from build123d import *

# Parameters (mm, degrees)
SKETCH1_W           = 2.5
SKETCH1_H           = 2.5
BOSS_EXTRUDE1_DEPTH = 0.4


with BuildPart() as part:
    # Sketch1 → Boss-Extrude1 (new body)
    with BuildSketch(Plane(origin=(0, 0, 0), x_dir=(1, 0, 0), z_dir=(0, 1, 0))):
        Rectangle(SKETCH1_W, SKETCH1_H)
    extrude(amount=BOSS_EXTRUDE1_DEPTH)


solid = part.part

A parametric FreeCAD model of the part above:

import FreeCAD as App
import Part
import Sketcher
from FreeCAD import Vector
Q = App.Units.Quantity

doc = App.newDocument("Part")
body = doc.addObject("PartDesign::Body", "Body")

sketch1 = body.newObject("Sketcher::SketchObject", "Sketch")
sketch1.AttachmentSupport = (doc.getObject("XZ_Plane"), [""])
sketch1.MapMode = "FlatFace"
sketch1.addGeometry([
    Part.LineSegment(Vector(-1.25, -1.25, 0), Vector(-1.25, 1.25, 0)),
    Part.LineSegment(Vector(-1.25, 1.25, 0), Vector(1.25, 1.25, 0)),
    Part.LineSegment(Vector(1.25, 1.25, 0), Vector(1.25, -1.25, 0)),
    Part.LineSegment(Vector(1.25, -1.25, 0), Vector(-1.25, -1.25, 0)),
], False)
sketch1.addConstraint([
    Sketcher.Constraint("Coincident", 0, 2, 1, 1),
    Sketcher.Constraint("Coincident", 1, 2, 2, 1),
    Sketcher.Constraint("Coincident", 2, 2, 3, 1),
    Sketcher.Constraint("Coincident", 3, 2, 0, 1),
    Sketcher.Constraint("Vertical", 0),
    Sketcher.Constraint("Horizontal", 1),
    Sketcher.Constraint("Vertical", 2),
    Sketcher.Constraint("Horizontal", 3),
    Sketcher.Constraint("Symmetric", 0, 2, 2, 2, -1, 1),
    Sketcher.Constraint("Equal", 3, 0),
    Sketcher.Constraint("DistanceX", 1, 1, 1, 2, Q("2.5 mm")),
])
pad1 = body.newObject("PartDesign::Pad", "Pad")
pad1.Profile = sketch1
pad1.Length = 0.4
pad1.Reversed = True

doc.recompute()
